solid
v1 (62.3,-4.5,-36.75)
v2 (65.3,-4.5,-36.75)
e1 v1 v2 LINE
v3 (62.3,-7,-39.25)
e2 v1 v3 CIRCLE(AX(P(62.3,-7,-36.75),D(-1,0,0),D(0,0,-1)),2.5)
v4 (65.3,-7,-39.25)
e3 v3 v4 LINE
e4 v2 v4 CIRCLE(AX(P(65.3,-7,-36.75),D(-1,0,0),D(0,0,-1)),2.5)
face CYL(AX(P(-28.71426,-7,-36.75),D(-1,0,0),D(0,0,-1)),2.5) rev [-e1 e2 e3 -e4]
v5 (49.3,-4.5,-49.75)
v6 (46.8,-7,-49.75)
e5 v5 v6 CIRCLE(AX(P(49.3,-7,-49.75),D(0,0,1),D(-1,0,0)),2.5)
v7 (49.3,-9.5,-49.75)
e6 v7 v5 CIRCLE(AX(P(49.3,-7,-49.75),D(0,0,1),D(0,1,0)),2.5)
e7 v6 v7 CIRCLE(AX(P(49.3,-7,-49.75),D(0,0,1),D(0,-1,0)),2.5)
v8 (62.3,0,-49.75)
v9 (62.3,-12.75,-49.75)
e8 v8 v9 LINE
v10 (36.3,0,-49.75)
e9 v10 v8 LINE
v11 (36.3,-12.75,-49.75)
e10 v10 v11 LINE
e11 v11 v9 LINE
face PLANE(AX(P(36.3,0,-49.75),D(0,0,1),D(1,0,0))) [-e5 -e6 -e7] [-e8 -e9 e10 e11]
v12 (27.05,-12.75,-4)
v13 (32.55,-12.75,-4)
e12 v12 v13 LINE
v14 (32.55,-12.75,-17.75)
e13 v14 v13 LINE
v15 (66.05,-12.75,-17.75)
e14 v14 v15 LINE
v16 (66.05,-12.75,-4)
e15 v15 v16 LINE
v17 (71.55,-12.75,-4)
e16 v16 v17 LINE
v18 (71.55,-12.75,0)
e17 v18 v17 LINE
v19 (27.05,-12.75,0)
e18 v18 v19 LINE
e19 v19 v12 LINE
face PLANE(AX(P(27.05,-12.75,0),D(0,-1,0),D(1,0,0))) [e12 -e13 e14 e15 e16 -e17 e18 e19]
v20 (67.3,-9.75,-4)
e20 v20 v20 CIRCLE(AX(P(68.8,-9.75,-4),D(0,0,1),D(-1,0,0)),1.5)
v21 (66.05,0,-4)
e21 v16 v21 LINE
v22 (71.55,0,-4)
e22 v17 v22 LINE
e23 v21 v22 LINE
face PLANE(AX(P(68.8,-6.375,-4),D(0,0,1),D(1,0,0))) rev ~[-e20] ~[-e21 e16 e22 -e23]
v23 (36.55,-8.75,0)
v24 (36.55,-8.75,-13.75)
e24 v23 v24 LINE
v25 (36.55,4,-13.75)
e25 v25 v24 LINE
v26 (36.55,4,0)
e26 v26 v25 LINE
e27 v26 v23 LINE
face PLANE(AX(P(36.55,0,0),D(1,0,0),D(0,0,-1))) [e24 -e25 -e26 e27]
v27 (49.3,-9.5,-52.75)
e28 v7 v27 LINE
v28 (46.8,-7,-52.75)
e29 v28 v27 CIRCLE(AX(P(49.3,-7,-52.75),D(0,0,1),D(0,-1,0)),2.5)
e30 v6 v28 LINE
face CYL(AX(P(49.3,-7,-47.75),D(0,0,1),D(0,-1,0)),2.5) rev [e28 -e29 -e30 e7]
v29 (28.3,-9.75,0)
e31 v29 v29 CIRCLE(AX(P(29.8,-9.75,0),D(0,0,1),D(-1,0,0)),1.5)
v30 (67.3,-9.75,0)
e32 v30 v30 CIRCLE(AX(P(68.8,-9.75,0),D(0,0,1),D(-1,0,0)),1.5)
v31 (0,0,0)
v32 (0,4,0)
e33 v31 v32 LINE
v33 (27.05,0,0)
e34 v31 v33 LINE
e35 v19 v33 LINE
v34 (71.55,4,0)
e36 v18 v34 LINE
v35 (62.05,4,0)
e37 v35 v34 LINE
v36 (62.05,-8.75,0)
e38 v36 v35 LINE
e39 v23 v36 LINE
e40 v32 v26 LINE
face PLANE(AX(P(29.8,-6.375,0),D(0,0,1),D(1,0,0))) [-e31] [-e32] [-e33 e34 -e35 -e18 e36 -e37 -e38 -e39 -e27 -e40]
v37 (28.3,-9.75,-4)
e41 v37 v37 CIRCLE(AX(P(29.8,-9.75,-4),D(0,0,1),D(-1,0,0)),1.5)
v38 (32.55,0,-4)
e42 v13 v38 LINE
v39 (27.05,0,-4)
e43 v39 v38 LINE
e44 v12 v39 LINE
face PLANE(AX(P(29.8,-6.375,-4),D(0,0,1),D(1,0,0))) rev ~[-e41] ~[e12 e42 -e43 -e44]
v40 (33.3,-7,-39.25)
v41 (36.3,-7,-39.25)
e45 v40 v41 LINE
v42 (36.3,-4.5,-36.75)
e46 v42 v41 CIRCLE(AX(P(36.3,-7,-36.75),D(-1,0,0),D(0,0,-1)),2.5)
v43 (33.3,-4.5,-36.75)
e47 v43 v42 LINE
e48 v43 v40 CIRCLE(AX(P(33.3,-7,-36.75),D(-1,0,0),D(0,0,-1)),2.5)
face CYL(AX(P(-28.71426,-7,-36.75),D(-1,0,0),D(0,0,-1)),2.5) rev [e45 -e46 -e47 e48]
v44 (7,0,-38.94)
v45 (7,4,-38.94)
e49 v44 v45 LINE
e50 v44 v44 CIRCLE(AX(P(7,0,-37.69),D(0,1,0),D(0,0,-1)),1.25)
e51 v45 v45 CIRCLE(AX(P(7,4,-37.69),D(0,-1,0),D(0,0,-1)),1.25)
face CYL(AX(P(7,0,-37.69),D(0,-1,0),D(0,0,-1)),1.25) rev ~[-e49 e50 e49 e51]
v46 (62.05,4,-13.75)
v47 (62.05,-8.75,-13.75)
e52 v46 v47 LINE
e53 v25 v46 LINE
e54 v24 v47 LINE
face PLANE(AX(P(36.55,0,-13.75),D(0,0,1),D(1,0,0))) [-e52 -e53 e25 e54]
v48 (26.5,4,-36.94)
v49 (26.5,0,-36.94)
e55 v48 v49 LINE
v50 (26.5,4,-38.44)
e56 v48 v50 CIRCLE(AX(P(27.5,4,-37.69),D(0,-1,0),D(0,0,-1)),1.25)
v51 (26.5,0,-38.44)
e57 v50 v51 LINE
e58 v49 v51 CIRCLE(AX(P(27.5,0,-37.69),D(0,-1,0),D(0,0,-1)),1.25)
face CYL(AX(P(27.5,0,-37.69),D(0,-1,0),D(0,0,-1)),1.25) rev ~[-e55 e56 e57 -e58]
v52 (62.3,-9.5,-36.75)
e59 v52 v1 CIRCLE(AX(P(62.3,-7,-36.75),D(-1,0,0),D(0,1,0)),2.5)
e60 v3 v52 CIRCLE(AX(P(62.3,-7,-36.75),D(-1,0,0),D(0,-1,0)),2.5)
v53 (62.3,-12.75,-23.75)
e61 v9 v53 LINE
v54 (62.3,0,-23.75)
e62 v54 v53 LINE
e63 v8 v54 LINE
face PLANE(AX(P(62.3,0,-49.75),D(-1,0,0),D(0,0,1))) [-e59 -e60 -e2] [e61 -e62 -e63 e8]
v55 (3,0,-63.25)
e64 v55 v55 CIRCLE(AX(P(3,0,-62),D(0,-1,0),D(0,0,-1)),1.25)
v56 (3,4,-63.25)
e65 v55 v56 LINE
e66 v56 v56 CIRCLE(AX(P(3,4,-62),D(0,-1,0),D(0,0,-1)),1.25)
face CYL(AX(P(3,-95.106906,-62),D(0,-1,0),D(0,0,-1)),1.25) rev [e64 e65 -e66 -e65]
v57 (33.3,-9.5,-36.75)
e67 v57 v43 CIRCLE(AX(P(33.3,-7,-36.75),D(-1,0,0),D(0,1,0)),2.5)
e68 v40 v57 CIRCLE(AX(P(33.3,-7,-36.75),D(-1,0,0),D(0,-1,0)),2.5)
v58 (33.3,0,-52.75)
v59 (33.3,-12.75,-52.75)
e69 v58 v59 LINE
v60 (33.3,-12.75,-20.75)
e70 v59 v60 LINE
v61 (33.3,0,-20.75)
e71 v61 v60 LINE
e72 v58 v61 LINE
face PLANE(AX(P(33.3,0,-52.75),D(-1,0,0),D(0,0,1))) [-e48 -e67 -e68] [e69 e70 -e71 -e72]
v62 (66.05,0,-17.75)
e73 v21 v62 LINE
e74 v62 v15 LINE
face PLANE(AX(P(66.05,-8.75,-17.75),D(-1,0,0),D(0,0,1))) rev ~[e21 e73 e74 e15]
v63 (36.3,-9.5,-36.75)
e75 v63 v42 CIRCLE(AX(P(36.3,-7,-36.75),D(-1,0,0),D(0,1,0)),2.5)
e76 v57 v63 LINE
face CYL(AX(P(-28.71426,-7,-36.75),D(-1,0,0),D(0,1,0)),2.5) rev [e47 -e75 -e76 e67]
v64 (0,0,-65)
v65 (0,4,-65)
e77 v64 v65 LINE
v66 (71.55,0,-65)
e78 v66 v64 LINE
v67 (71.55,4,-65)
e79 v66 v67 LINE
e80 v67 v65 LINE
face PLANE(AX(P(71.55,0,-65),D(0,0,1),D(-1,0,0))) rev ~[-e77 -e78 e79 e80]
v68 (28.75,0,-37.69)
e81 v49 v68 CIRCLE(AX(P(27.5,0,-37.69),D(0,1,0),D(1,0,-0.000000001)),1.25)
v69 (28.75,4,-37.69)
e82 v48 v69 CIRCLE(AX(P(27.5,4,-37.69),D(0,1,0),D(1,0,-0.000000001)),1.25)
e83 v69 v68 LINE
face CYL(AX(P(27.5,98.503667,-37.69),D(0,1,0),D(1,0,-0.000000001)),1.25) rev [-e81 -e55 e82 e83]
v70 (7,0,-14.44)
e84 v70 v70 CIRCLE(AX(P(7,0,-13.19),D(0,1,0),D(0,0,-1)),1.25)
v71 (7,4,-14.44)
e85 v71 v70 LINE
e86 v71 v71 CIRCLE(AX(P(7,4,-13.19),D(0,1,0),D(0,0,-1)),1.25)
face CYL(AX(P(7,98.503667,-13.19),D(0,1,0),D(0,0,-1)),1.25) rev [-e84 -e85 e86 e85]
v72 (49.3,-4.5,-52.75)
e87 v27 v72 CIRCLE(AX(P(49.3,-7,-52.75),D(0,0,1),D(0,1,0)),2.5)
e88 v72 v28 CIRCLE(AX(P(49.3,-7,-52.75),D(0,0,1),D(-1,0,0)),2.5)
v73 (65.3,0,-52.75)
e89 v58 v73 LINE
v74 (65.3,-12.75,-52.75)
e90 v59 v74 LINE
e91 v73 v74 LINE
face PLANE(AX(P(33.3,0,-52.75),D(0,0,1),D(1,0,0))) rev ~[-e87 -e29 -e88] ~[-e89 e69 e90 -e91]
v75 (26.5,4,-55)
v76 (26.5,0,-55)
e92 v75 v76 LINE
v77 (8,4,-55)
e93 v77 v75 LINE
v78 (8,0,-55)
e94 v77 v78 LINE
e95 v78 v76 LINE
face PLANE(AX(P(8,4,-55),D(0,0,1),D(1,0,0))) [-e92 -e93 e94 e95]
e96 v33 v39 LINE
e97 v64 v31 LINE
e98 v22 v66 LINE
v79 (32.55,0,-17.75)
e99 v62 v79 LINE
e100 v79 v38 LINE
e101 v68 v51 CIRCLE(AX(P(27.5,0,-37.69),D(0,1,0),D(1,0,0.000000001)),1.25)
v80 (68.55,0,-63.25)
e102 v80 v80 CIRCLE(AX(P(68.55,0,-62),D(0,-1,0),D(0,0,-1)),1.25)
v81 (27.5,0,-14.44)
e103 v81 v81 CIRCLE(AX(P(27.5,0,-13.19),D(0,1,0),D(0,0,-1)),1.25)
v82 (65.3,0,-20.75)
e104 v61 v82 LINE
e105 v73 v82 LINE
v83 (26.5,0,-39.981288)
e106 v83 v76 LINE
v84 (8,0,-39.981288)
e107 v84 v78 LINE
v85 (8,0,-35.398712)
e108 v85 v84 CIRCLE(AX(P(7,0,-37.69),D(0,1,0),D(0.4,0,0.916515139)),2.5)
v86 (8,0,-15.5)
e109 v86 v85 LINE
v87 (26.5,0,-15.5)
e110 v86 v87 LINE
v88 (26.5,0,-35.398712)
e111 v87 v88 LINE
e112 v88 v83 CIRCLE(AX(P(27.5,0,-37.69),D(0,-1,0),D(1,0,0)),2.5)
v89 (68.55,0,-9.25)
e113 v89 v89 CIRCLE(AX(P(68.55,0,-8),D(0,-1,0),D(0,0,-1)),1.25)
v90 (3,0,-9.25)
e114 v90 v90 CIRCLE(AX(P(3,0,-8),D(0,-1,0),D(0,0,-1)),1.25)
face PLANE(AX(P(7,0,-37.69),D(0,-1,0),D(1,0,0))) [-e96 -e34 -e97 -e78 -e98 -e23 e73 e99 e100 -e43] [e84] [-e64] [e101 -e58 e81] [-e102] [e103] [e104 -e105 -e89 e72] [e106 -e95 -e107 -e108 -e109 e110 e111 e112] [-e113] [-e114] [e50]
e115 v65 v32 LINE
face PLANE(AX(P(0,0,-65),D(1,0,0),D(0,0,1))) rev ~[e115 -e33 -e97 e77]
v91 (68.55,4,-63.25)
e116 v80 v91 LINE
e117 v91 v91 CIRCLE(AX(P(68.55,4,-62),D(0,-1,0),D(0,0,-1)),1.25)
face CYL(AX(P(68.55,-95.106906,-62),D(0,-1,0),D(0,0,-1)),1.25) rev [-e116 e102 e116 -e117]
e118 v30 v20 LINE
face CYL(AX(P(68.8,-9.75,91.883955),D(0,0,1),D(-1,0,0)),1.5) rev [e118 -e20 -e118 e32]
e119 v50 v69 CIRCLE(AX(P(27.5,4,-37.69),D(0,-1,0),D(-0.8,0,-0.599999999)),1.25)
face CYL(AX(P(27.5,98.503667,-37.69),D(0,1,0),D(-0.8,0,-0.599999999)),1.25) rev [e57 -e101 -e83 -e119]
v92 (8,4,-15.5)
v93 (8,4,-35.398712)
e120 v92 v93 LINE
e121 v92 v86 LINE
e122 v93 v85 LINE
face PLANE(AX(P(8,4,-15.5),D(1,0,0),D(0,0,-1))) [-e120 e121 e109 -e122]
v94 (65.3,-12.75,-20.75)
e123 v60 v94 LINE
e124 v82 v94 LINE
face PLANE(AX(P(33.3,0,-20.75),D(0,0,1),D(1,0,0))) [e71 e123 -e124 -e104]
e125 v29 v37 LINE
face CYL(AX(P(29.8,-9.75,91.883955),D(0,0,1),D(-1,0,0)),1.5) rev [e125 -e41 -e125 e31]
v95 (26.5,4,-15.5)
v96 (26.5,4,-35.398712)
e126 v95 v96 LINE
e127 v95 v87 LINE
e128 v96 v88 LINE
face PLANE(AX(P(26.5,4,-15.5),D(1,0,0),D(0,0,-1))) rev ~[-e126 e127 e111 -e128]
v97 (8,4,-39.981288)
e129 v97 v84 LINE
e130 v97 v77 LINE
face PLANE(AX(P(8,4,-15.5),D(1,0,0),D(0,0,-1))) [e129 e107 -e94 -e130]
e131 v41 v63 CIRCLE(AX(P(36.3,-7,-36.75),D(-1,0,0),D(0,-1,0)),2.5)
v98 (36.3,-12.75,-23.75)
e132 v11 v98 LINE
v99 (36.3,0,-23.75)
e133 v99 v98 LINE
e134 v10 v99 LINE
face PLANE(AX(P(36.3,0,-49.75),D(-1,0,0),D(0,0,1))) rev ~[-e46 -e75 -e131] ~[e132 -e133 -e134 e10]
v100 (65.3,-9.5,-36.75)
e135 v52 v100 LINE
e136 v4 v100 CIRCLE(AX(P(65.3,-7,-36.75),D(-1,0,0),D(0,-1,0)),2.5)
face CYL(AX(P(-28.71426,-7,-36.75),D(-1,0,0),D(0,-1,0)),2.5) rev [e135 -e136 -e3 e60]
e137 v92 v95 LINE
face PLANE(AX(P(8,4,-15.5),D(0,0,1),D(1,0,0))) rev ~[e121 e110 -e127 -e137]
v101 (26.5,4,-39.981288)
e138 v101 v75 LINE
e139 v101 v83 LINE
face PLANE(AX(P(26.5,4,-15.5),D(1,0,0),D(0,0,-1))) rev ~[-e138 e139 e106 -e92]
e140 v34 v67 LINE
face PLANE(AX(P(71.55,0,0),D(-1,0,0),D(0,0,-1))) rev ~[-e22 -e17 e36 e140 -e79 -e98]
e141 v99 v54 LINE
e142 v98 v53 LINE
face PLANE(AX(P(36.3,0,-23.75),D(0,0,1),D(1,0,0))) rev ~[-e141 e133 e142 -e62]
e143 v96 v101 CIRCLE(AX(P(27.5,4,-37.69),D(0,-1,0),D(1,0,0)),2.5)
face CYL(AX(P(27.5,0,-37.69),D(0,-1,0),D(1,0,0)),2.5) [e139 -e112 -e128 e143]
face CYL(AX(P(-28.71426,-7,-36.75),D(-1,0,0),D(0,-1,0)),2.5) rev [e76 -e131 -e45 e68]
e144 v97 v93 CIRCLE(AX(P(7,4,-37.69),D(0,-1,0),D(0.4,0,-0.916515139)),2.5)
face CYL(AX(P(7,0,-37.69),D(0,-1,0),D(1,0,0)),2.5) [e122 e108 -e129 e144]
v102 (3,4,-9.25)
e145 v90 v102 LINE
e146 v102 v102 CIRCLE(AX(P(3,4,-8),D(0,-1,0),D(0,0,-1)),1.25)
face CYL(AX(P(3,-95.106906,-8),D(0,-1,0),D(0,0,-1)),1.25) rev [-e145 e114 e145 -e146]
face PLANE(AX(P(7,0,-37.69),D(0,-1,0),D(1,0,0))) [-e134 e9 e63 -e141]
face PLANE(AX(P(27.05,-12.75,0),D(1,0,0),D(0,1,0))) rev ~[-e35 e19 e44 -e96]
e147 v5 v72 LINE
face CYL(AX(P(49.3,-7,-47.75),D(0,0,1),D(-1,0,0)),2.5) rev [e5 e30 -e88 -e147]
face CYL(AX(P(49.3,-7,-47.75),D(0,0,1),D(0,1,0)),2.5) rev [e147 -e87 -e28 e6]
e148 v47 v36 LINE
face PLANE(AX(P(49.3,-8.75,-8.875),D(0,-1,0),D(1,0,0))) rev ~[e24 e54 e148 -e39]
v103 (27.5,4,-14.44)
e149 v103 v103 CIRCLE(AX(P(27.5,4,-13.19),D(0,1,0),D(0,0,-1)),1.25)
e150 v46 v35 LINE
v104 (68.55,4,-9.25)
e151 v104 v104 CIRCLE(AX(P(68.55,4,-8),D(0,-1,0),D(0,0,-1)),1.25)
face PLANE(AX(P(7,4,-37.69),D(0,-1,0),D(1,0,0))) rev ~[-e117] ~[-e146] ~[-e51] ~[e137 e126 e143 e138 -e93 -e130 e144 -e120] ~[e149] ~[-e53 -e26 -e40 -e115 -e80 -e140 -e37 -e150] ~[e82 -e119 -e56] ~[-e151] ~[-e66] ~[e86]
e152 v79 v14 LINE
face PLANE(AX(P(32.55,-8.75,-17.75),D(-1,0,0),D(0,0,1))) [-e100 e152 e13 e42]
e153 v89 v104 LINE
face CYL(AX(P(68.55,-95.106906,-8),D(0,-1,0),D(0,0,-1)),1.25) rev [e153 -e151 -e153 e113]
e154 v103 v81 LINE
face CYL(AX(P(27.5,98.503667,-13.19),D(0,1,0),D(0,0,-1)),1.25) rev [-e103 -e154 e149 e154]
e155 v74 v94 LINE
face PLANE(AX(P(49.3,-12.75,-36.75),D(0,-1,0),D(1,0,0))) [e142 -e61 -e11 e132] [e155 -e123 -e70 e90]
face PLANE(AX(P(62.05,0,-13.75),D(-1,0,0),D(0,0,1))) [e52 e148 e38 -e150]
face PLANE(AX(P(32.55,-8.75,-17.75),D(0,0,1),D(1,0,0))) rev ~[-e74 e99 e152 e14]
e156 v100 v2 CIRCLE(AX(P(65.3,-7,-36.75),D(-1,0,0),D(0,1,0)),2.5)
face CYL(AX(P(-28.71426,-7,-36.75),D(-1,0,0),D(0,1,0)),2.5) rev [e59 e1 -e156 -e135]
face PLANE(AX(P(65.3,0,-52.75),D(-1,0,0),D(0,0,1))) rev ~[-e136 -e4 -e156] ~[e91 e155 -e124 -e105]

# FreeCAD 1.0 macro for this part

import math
import FreeCAD as App
import Part
import Sketcher

V = App.Vector
Q = App.Units.Quantity

doc = App.newDocument("Part")
body = doc.addObject("PartDesign::Body", "Body")

# Sketch on XZ plane
sketch1 = body.newObject("Sketcher::SketchObject", "Sketch")
sketch1.AttachmentSupport = (doc.getObject("XZ_Plane"), [""])
sketch1.MapMode = "FlatFace"
sketch1.addGeometry([
    Part.LineSegment(V(0, 0, 0), V(37, 0, 0)),  # 0
    Part.LineSegment(V(37, 0, 0), V(37, -14, 0)),  # 1
    Part.LineSegment(V(37, -14, 0), V(62, -14, 0)),  # 2
    Part.LineSegment(V(62, -14, 0), V(62, 0, 0)),  # 3
    Part.LineSegment(V(62, 0, 0), V(72, 0, 0)),  # 4
    Part.LineSegment(V(72, 0, 0), V(72, -65, 0)),  # 5
    Part.LineSegment(V(72, -65, 0), V(0, -65, 0)),  # 6
    Part.LineSegment(V(0, -65, 0), V(0, 0, 0)),  # 7
], False)
sketch1.addConstraint([
    Sketcher.Constraint("Coincident", 0, 2, 1, 1),
    Sketcher.Constraint("Coincident", 1, 2, 2, 1),
    Sketcher.Constraint("Coincident", 2, 2, 3, 1),
    Sketcher.Constraint("Coincident", 3, 2, 4, 1),
    Sketcher.Constraint("Coincident", 4, 2, 5, 1),
    Sketcher.Constraint("Coincident", 5, 2, 6, 1),
    Sketcher.Constraint("Coincident", 6, 2, 7, 1),
    Sketcher.Constraint("Coincident", 7, 2, 0, 1),
    Sketcher.Constraint("Horizontal", 0),
    Sketcher.Constraint("Vertical", 1),
    Sketcher.Constraint("Horizontal", 2),
    Sketcher.Constraint("Vertical", 3),
    Sketcher.Constraint("Horizontal", 4),
    Sketcher.Constraint("Vertical", 5),
    Sketcher.Constraint("Horizontal", 6),
    Sketcher.Constraint("Vertical", 7),
    Sketcher.Constraint("Coincident", 7, 2, -1, 1),
    Sketcher.Constraint("PointOnObject", 3, 2, -1),
    Sketcher.Constraint("DistanceY", 5, 2, 5, 1, Q("65 mm")),
    Sketcher.Constraint("DistanceX", 2, 1, 2, 2, Q("25.5 mm")),
    Sketcher.Constraint("DistanceX", 4, 1, 4, 2, Q("9.5 mm")),
    Sketcher.Constraint("DistanceX", 0, 1, 0, 2, Q("36.55 mm")),
    Sketcher.Constraint("DistanceY", 1, 2, 1, 1, Q("13.75 mm")),
])
pad1 = body.newObject("PartDesign::Pad", "Pad")
pad1.Profile = sketch1
pad1.Length = 4
pad1.Reversed = True

# Sketch on XZ plane
sketch2 = body.newObject("Sketcher::SketchObject", "Sketch001")
sketch2.AttachmentSupport = (doc.getObject("XZ_Plane"), [""])
sketch2.MapMode = "FlatFace"
sketch2.addGeometry([
    Part.LineSegment(V(62, -13.8, 0), V(62, 0, 0)),  # 0
    Part.LineSegment(V(62, 0, 0), V(66, 0, 0)),  # 1
    Part.LineSegment(V(66, 0, 0), V(66, -17.8, 0)),  # 2
    Part.LineSegment(V(66, -17.8, 0), V(32.5, -17.8, 0)),  # 3
    Part.LineSegment(V(32.5, -17.8, 0), V(32.5, 0, 0)),  # 4
    Part.LineSegment(V(32.5, 0, 0), V(36.5, 0, 0)),  # 5
    Part.LineSegment(V(36.5, 0, 0), V(36.5, -13.8, 0)),  # 6
    Part.LineSegment(V(36.5, -13.8, 0), V(62, -13.8, 0)),  # 7
], False)
sketch2.addConstraint([
    Sketcher.Constraint("Coincident", 0, 2, 1, 1),
    Sketcher.Constraint("Coincident", 1, 2, 2, 1),
    Sketcher.Constraint("Coincident", 2, 2, 3, 1),
    Sketcher.Constraint("Coincident", 3, 2, 4, 1),
    Sketcher.Constraint("Coincident", 4, 2, 5, 1),
    Sketcher.Constraint("Coincident", 5, 2, 6, 1),
    Sketcher.Constraint("Coincident", 6, 2, 7, 1),
    Sketcher.Constraint("Coincident", 7, 2, 0, 1),
    Sketcher.Constraint("Vertical", 0),
    Sketcher.Constraint("Horizontal", 1),
    Sketcher.Constraint("Vertical", 2),
    Sketcher.Constraint("Horizontal", 3),
    Sketcher.Constraint("Vertical", 4),
    Sketcher.Constraint("Horizontal", 5),
    Sketcher.Constraint("Vertical", 6),
    Sketcher.Constraint("Horizontal", 7),
    Sketcher.Constraint("PointOnObject", 0, 2, -1),
    Sketcher.Constraint("PointOnObject", 4, 2, -1),
    Sketcher.Constraint("Equal", 1, 5),
    Sketcher.Constraint("DistanceX", 1, 1, 1, 2, Q("4 mm")),
    Sketcher.Constraint("DistanceX", 3, 2, 3, 1, Q("33.5 mm")),
    Sketcher.Constraint("DistanceY", 3, 2, 6, 2, Q("4 mm")),
    Sketcher.Constraint("DistanceY", 0, 1, 0, 2, Q("13.75 mm")),
    Sketcher.Constraint("DistanceX", -1, 1, 0, 2, Q("62.05 mm")),
])
pad2 = body.newObject("PartDesign::Pad", "Pad001")
pad2.Profile = sketch2
pad2.Length = 8.75

# Sketch on XZ plane
sketch3 = body.newObject("Sketcher::SketchObject", "Sketch002")
sketch3.AttachmentSupport = (doc.getObject("XZ_Plane"), [""])
sketch3.MapMode = "FlatFace"
sketch3.AttachmentOffset = App.Placement(V(0, 0, 8.75), App.Rotation())
sketch3.addGeometry([
    Part.LineSegment(V(33, 0, 0), V(33, -18, 0)),
    Part.LineSegment(V(33, -18, 0), V(66, -18, 0)),
    Part.LineSegment(V(66, -18, 0), V(66, 0, 0)),
    Part.LineSegment(V(66, 0, 0), V(33, 0, 0)),
], False)
sketch3.addConstraint([
    Sketcher.Constraint("Coincident", 0, 2, 1, 1),
    Sketcher.Constraint("Coincident", 1, 2, 2, 1),
    Sketcher.Constraint("Coincident", 2, 2, 3, 1),
    Sketcher.Constraint("Coincident", 3, 2, 0, 1),
    Sketcher.Constraint("Vertical", 0),
    Sketcher.Constraint("Horizontal", 1),
    Sketcher.Constraint("Vertical", 2),
    Sketcher.Constraint("Horizontal", 3),
    Sketcher.Constraint("PointOnObject", 2, 2, -1),
    Sketcher.Constraint("DistanceX", 1, 1, 1, 2, Q("33.5 mm")),
    Sketcher.Constraint("DistanceY", 0, 2, 0, 1, Q("17.75 mm")),
    Sketcher.Constraint("DistanceX", -1, 1, 0, 2, Q("32.55 mm")),
])
pad3 = body.newObject("PartDesign::Pad", "Pad002")
pad3.Profile = sketch3
pad3.Length = 4

# Sketch on XZ plane
sketch4 = body.newObject("Sketcher::SketchObject", "Sketch003")
sketch4.AttachmentSupport = (doc.getObject("XZ_Plane"), [""])
sketch4.MapMode = "FlatFace"
sketch4.AttachmentOffset = App.Placement(V(0, 0, -4), App.Rotation())
sketch4.addGeometry([
    Part.LineSegment(V(8, -55, 0), V(8, -16, 0)),
    Part.LineSegment(V(8, -16, 0), V(26, -16, 0)),
    Part.LineSegment(V(26, -16, 0), V(26, -55, 0)),
    Part.LineSegment(V(26, -55, 0), V(8, -55, 0)),
], False)
sketch4.addConstraint([
    Sketcher.Constraint("Coincident", 0, 2, 1, 1),
    Sketcher.Constraint("Coincident", 1, 2, 2, 1),
    Sketcher.Constraint("Coincident", 2, 2, 3, 1),
    Sketcher.Constraint("Coincident", 3, 2, 0, 1),
    Sketcher.Constraint("Vertical", 0),
    Sketcher.Constraint("Horizontal", 1),
    Sketcher.Constraint("Vertical", 2),
    Sketcher.Constraint("Horizontal", 3),
    Sketcher.Constraint("DistanceX", 1, 1, 1, 2, Q("18.5 mm")),
    Sketcher.Constraint("DistanceY", 0, 1, 0, 2, Q("39.5 mm")),
    Sketcher.Constraint("DistanceX", -1, 1, 0, 2, Q("8 mm")),
    Sketcher.Constraint("DistanceY", 2, 2, -1, 1, Q("55 mm")),
])
pocket1 = body.newObject("PartDesign::Pocket", "Pocket")
pocket1.Profile = sketch4
pocket1.Length = 4
pocket1.Reversed = True

# Sketch on XY plane
sketch5 = body.newObject("Sketcher::SketchObject", "Sketch004")
sketch5.AttachmentSupport = (doc.getObject("XY_Plane"), [""])
sketch5.MapMode = "FlatFace"
sketch5.addGeometry([
    Part.LineSegment(V(27, 0, 0), V(27, -13, 0)),  # 0
    Part.LineSegment(V(27, -13, 0), V(33, -13, 0)),  # 1
    Part.LineSegment(V(33, -13, 0), V(33, 0, 0)),  # 2
    Part.LineSegment(V(33, 0, 0), V(27, 0, 0)),  # 3
    Part.LineSegment(V(66, 0, 0), V(66, -13, 0)),  # 4
    Part.LineSegment(V(66, -13, 0), V(72, -13, 0)),  # 5
    Part.LineSegment(V(72, -13, 0), V(72, 0, 0)),  # 6
    Part.LineSegment(V(72, 0, 0), V(66, 0, 0)),  # 7
], False)
sketch5.addConstraint([
    Sketcher.Constraint("Coincident", 0, 2, 1, 1),
    Sketcher.Constraint("Coincident", 1, 2, 2, 1),
    Sketcher.Constraint("Coincident", 2, 2, 3, 1),
    Sketcher.Constraint("Coincident", 3, 2, 0, 1),
    Sketcher.Constraint("Coincident", 4, 2, 5, 1),
    Sketcher.Constraint("Coincident", 5, 2, 6, 1),
    Sketcher.Constraint("Coincident", 6, 2, 7, 1),
    Sketcher.Constraint("Coincident", 7, 2, 4, 1),
    Sketcher.Constraint("Vertical", 0),
    Sketcher.Constraint("Horizontal", 1),
    Sketcher.Constraint("Vertical", 2),
    Sketcher.Constraint("Horizontal", 3),
    Sketcher.Constraint("Vertical", 4),
    Sketcher.Constraint("Horizontal", 5),
    Sketcher.Constraint("Vertical", 6),
    Sketcher.Constraint("Horizontal", 7),
    Sketcher.Constraint("PointOnObject", 2, 2, -1),
    Sketcher.Constraint("PointOnObject", 6, 2, -1),
    Sketcher.Constraint("Horizontal", 1, 2, 4, 2),
    Sketcher.Constraint("Equal", 3, 5),
    Sketcher.Constraint("DistanceX", 1, 1, 1, 2, Q("5.5 mm")),
    Sketcher.Constraint("DistanceX", 0, 2, 4, 2, Q("39 mm")),
    Sketcher.Constraint("DistanceY", 0, 2, 0, 1, Q("12.75 mm")),
    Sketcher.Constraint("DistanceX", -1, 1, 0, 2, Q("27.05 mm")),
])
pad4 = body.newObject("PartDesign::Pad", "Pad003")
pad4.Profile = sketch5
pad4.Length = 4
pad4.Reversed = True

# Sketch on XZ plane
sketch6 = body.newObject("Sketcher::SketchObject", "Sketch005")
sketch6.AttachmentSupport = (doc.getObject("XZ_Plane"), [""])
sketch6.MapMode = "FlatFace"
sketch6.addGeometry([
    Part.Circle(V(7, -13.2, 0), V(0, 0, 1), 1.2),  # 0
    Part.Circle(V(27.5, -13.2, 0), V(0, 0, 1), 1.2),  # 1
    Part.ArcOfCircle(Part.Circle(V(27.5, -37.7, 0), V(0, 0, 1), 1.2), math.radians(-143), math.radians(0)),  # 2
    Part.ArcOfCircle(Part.Circle(V(27.5, -37.7, 0), V(0, 0, 1), 1.2), math.radians(0), math.radians(143)),  # 3
    Part.ArcOfCircle(Part.Circle(V(27.5, -37.7, 0), V(0, 0, 1), 1.2), math.radians(143), math.radians(217)),  # 4
    Part.ArcOfCircle(Part.Circle(V(7, -37.7, 0), V(0, 0, 1), 1.2), math.radians(-37), math.radians(0)),  # 5
    Part.ArcOfCircle(Part.Circle(V(7, -37.7, 0), V(0, 0, 1), 1.2), math.radians(0), math.radians(37)),  # 6
    Part.ArcOfCircle(Part.Circle(V(7, -37.7, 0), V(0, 0, 1), 1.2), math.radians(37), math.radians(323)),  # 7
], False)
sketch6.addConstraint([
    Sketcher.Constraint("Tangent", 2, 2, 3, 1),
    Sketcher.Constraint("Tangent", 3, 2, 4, 1),
    Sketcher.Constraint("Tangent", 4, 2, 2, 1),
    Sketcher.Constraint("Tangent", 5, 2, 6, 1),
    Sketcher.Constraint("Tangent", 6, 2, 7, 1),
    Sketcher.Constraint("Tangent", 7, 2, 5, 1),
    Sketcher.Constraint("Equal", 0, 1),
    Sketcher.Constraint("Equal", 1, 2),
    Sketcher.Constraint("Equal", 4, 5),
    Sketcher.Constraint("Horizontal", 0, 3, 1, 3),
    Sketcher.Constraint("Horizontal", 4, 3, 5, 3),
    Sketcher.Constraint("Horizontal", 7, 3, 2, 2),
    Sketcher.Constraint("Horizontal", 2, 2, 5, 2),
    Sketcher.Constraint("Horizontal", 3, 2, 6, 2),
    Sketcher.Constraint("Horizontal", 4, 2, 7, 2),
    Sketcher.Constraint("Vertical", 1, 3, 2, 3),
    Sketcher.Constraint("Vertical", 0, 3, 5, 3),
    Sketcher.Constraint("Vertical", 3, 2, 4, 2),
    Sketcher.Constraint("Diameter", 0, Q("2.5 mm")),
    Sketcher.Constraint("DistanceX", -1, 1, 0, 3, Q("7 mm")),
    Sketcher.Constraint("DistanceX", -1, 1, 6, 2, Q("8 mm")),
    Sketcher.Constraint("DistanceX", -1, 1, 1, 3, Q("27.5 mm")),
    Sketcher.Constraint("DistanceY", 2, 3, 1, 3, Q("24.5 mm")),
    Sketcher.Constraint("DistanceY", 0, 3, -1, 1, Q("13.19 mm")),
])
pocket2 = body.newObject("PartDesign::Pocket", "Pocket001")
pocket2.Profile = sketch6
pocket2.Type = "ThroughAll"
pocket2.Midplane = True

# Sketch on XZ plane
sketch7 = body.newObject("Sketcher::SketchObject", "Sketch006")
sketch7.AttachmentSupport = (doc.getObject("XZ_Plane"), [""])
sketch7.MapMode = "FlatFace"
sketch7.addGeometry([
    Part.Circle(V(7, -37.7, 0), V(0, 0, 1), 2.5),
    Part.Circle(V(7, -37.7, 0), V(0, 0, 1), 1.2),
    Part.Circle(V(27.5, -37.7, 0), V(0, 0, 1), 2.5),
    Part.Circle(V(27.5, -37.7, 0), V(0, 0, 1), 1.2),
], False)
sketch7.addConstraint([
    Sketcher.Constraint("Coincident", 1, 3, 0, 3),
    Sketcher.Constraint("Coincident", 3, 3, 2, 3),
    Sketcher.Constraint("Equal", 0, 2),
    Sketcher.Constraint("Equal", 1, 3),
    Sketcher.Constraint("Horizontal", 1, 3, 2, 3),
    Sketcher.Constraint("Diameter", 0, Q("5 mm")),
    Sketcher.Constraint("Diameter", 1, Q("2.5 mm")),
    Sketcher.Constraint("DistanceX", -1, 1, 0, 3, Q("7 mm")),
    Sketcher.Constraint("DistanceX", -1, 1, 2, 3, Q("27.5 mm")),
    Sketcher.Constraint("DistanceY", 0, 3, -1, 1, Q("37.69 mm")),
])
pad5 = body.newObject("PartDesign::Pad", "Pad004")
pad5.Profile = sketch7
pad5.Length = 4
pad5.Reversed = True

# Sketch on XZ plane
sketch8 = body.newObject("Sketcher::SketchObject", "Sketch007")
sketch8.AttachmentSupport = (doc.getObject("XZ_Plane"), [""])
sketch8.MapMode = "FlatFace"
sketch8.AttachmentOffset = App.Placement(V(0, 0, -4), App.Rotation())
sketch8.addGeometry([
    Part.Circle(V(3, -62, 0), V(0, 0, 1), 1.2),
    Part.Circle(V(68.5, -62, 0), V(0, 0, 1), 1.2),
    Part.Circle(V(68.5, -8, 0), V(0, 0, 1), 1.2),
    Part.Circle(V(3, -8, 0), V(0, 0, 1), 1.2),
], False)
sketch8.addConstraint([
    Sketcher.Constraint("Equal", 0, 1),
    Sketcher.Constraint("Equal", 1, 2),
    Sketcher.Constraint("Equal", 2, 3),
    Sketcher.Constraint("Horizontal", 0, 3, 1, 3),
    Sketcher.Constraint("Horizontal", 2, 3, 3, 3),
    Sketcher.Constraint("Vertical", 1, 3, 2, 3),
    Sketcher.Constraint("Vertical", 0, 3, 3, 3),
    Sketcher.Constraint("Diameter", 0, Q("2.5 mm")),
    Sketcher.Constraint("DistanceX", -1, 1, 0, 3, Q("3 mm")),
    Sketcher.Constraint("DistanceY", 0, 3, -1, 1, Q("62 mm")),
    Sketcher.Constraint("DistanceY", 2, 3, -1, 1, Q("8 mm")),
    Sketcher.Constraint("DistanceX", -1, 1, 1, 3, Q("68.55 mm")),
])
pocket3 = body.newObject("PartDesign::Pocket", "Pocket002")
pocket3.Profile = sketch8
pocket3.Type = "ThroughAll"
pocket3.Midplane = True

# Sketch on XY plane
sketch9 = body.newObject("Sketcher::SketchObject", "Sketch008")
sketch9.AttachmentSupport = (doc.getObject("XY_Plane"), [""])
sketch9.MapMode = "FlatFace"
sketch9.AttachmentOffset = App.Placement(V(0, 0, -4), App.Rotation())
sketch9.addGeometry([
    Part.Circle(V(68.8, -9.8, 0), V(0, 0, 1), 1.5),
    Part.Circle(V(29.8, -9.8, 0), V(0, 0, 1), 1.5),
], False)
sketch9.addConstraint([
    Sketcher.Constraint("Equal", 0, 1),
    Sketcher.Constraint("Horizontal", 0, 3, 1, 3),
    Sketcher.Constraint("Diameter", 0, Q("3 mm")),
    Sketcher.Constraint("DistanceX", 1, 3, 0, 3, Q("39 mm")),
    Sketcher.Constraint("DistanceX", -1, 1, 0, 3, Q("68.8 mm")),
    Sketcher.Constraint("DistanceY", 0, 3, -1, 1, Q("9.75 mm")),
])
pocket4 = body.newObject("PartDesign::Pocket", "Pocket003")
pocket4.Profile = sketch9
pocket4.Type = "ThroughAll"
pocket4.Midplane = True

# Sketch on XZ plane
sketch10 = body.newObject("Sketcher::SketchObject", "Sketch009")
sketch10.AttachmentSupport = (doc.getObject("XZ_Plane"), [""])
sketch10.MapMode = "FlatFace"
sketch10.addGeometry([
    Part.LineSegment(V(33, -21, 0), V(33, -53, 0)),  # 0
    Part.LineSegment(V(33, -53, 0), V(65, -53, 0)),  # 1
    Part.LineSegment(V(65, -53, 0), V(65, -21, 0)),  # 2
    Part.LineSegment(V(65, -21, 0), V(33, -21, 0)),  # 3
    Part.LineSegment(V(62, -50, 0), V(36, -50, 0)),  # 4
    Part.LineSegment(V(36, -50, 0), V(36, -24, 0)),  # 5
    Part.LineSegment(V(36, -24, 0), V(62, -24, 0)),  # 6
    Part.LineSegment(V(62, -24, 0), V(62, -50, 0)),  # 7
], False)
sketch10.addConstraint([
    Sketcher.Constraint("Coincident", 0, 2, 1, 1),
    Sketcher.Constraint("Coincident", 1, 2, 2, 1),
    Sketcher.Constraint("Coincident", 2, 2, 3, 1),
    Sketcher.Constraint("Coincident", 3, 2, 0, 1),
    Sketcher.Constraint("Coincident", 4, 2, 5, 1),
    Sketcher.Constraint("Coincident", 5, 2, 6, 1),
    Sketcher.Constraint("Coincident", 6, 2, 7, 1),
    Sketcher.Constraint("Coincident", 7, 2, 4, 1),
    Sketcher.Constraint("Vertical", 0),
    Sketcher.Constraint("Horizontal", 1),
    Sketcher.Constraint("Vertical", 2),
    Sketcher.Constraint("Horizontal", 3),
    Sketcher.Constraint("Horizontal", 4),
    Sketcher.Constraint("Vertical", 5),
    Sketcher.Constraint("Horizontal", 6),
    Sketcher.Constraint("Vertical", 7),
    Sketcher.Constraint("Equal", 3, 0),
    Sketcher.Constraint("Equal", 6, 5),
    Sketcher.Constraint("DistanceX", 1, 1, 1, 2, Q("32 mm")),
    Sketcher.Constraint("DistanceX", 4, 2, 4, 1, Q("26 mm")),
    Sketcher.Constraint("DistanceX", 0, 2, 4, 2, Q("3 mm")),
    Sketcher.Constraint("DistanceY", 0, 2, 4, 2, Q("3 mm")),
    Sketcher.Constraint("DistanceX", -1, 1, 0, 2, Q("33.3 mm")),
    Sketcher.Constraint("DistanceY", 0, 2, -1, 1, Q("52.75 mm")),
])
pad6 = body.newObject("PartDesign::Pad", "Pad005")
pad6.Profile = sketch10
pad6.Length = 12.75

# Sketch on YZ plane
sketch11 = body.newObject("Sketcher::SketchObject", "Sketch010")
sketch11.AttachmentSupport = (doc.getObject("YZ_Plane"), [""])
sketch11.MapMode = "FlatFace"
sketch11.AttachmentOffset = App.Placement(V(0, 0, 65.3), App.Rotation())
sketch11.addGeometry([
    Part.ArcOfCircle(Part.Circle(V(-7, -36.8, 0), V(0, 0, 1), 2.5), math.radians(-90), math.radians(0)),
    Part.ArcOfCircle(Part.Circle(V(-7, -36.8, 0), V(0, 0, 1), 2.5), math.radians(0), math.radians(180)),
    Part.ArcOfCircle(Part.Circle(V(-7, -36.8, 0), V(0, 0, 1), 2.5), math.radians(180), math.radians(270)),
], False)
sketch11.addConstraint([
    Sketcher.Constraint("Tangent", 0, 2, 1, 1),
    Sketcher.Constraint("Tangent", 1, 2, 2, 1),
    Sketcher.Constraint("Tangent", 2, 2, 0, 1),
    Sketcher.Constraint("Horizontal", 2, 3, 0, 2),
    Sketcher.Constraint("Horizontal", 0, 2, 1, 2),
    Sketcher.Constraint("Vertical", 1, 3, 2, 2),
    Sketcher.Constraint("Radius", 0, Q("2.5 mm")),
    Sketcher.Constraint("DistanceX", 0, 3, -1, 1, Q("7 mm")),
    Sketcher.Constraint("DistanceY", 0, 3, -1, 1, Q("36.75 mm")),
])
pocket5 = body.newObject("PartDesign::Pocket", "Pocket004")
pocket5.Profile = sketch11
pocket5.Type = "ThroughAll"
pocket5.Midplane = True

# Sketch on XY plane
sketch12 = body.newObject("Sketcher::SketchObject", "Sketch011")
sketch12.AttachmentSupport = (doc.getObject("XY_Plane"), [""])
sketch12.MapMode = "FlatFace"
sketch12.AttachmentOffset = App.Placement(V(0, 0, -52.75), App.Rotation())
sketch12.addGeometry([
    Part.ArcOfCircle(Part.Circle(V(49.3, -7, 0), V(0, 0, 1), 2.5), math.radians(90), math.radians(180)),
    Part.ArcOfCircle(Part.Circle(V(49.3, -7, 0), V(0, 0, 1), 2.5), math.radians(-90), math.radians(90)),
    Part.ArcOfCircle(Part.Circle(V(49.3, -7, 0), V(0, 0, 1), 2.5), math.radians(180), math.radians(270)),
], False)
sketch12.addConstraint([
    Sketcher.Constraint("Tangent", 0, 1, 1, 2),
    Sketcher.Constraint("Tangent", 1, 1, 2, 2),
    Sketcher.Constraint("Tangent", 2, 1, 0, 2),
    Sketcher.Constraint("Horizontal", 1, 3, 2, 1),
    Sketcher.Constraint("Vertical", 2, 3, 0, 1),
    Sketcher.Constraint("Vertical", 0, 1, 1, 1),
    Sketcher.Constraint("Radius", 0, Q("2.5 mm")),
    Sketcher.Constraint("DistanceY", 0, 3, -1, 1, Q("7 mm")),
    Sketcher.Constraint("DistanceX", -1, 1, 0, 3, Q("49.3 mm")),
])
pocket6 = body.newObject("PartDesign::Pocket", "Pocket005")
pocket6.Profile = sketch12
pocket6.Type = "TwoLengths"
pocket6.Length = 90.802714
pocket6.Length2 = 5

doc.recompute()
